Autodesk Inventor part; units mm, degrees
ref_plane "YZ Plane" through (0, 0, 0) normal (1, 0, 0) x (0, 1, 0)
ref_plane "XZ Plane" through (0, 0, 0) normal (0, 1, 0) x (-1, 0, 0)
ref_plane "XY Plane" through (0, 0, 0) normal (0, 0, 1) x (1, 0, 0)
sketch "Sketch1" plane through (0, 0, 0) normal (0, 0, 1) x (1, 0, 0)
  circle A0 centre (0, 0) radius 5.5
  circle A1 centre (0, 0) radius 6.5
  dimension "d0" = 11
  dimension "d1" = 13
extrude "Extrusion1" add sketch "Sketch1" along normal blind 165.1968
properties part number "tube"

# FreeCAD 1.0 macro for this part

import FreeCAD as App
import Part
import Sketcher
from FreeCAD import Vector
Q = App.Units.Quantity

doc = App.newDocument("Part")
body = doc.addObject("PartDesign::Body", "Body")

# Sketch on XY plane
sketch1 = doc.addObject("Sketcher::SketchObject", "Sketch")
body.addObject(sketch1)
sketch1.AttachmentSupport = (doc.XY_Plane, [""])
sketch1.MapMode = "FlatFace"
sketch1.addGeometry(Part.Circle(Vector(0, 0, 0), Vector(0, 0, 1), 6.5), False)
sketch1.addGeometry(Part.Circle(Vector(0, 0, 0), Vector(0, 0, 1), 5.5), False)
sketch1.addConstraint(Sketcher.Constraint("Coincident", 0, 3, -1, 1))
sketch1.addConstraint(Sketcher.Constraint("Coincident", 1, 3, -1, 1))
sketch1.addConstraint(Sketcher.Constraint("Diameter", 0, Q("13 mm")))
sketch1.addConstraint(Sketcher.Constraint("Diameter", 1, Q("11 mm")))
pad1 = doc.addObject("PartDesign::Pad", "Pad")
body.addObject(pad1)
pad1.Profile = sketch1
pad1.Length = 165.1968

doc.recompute()
